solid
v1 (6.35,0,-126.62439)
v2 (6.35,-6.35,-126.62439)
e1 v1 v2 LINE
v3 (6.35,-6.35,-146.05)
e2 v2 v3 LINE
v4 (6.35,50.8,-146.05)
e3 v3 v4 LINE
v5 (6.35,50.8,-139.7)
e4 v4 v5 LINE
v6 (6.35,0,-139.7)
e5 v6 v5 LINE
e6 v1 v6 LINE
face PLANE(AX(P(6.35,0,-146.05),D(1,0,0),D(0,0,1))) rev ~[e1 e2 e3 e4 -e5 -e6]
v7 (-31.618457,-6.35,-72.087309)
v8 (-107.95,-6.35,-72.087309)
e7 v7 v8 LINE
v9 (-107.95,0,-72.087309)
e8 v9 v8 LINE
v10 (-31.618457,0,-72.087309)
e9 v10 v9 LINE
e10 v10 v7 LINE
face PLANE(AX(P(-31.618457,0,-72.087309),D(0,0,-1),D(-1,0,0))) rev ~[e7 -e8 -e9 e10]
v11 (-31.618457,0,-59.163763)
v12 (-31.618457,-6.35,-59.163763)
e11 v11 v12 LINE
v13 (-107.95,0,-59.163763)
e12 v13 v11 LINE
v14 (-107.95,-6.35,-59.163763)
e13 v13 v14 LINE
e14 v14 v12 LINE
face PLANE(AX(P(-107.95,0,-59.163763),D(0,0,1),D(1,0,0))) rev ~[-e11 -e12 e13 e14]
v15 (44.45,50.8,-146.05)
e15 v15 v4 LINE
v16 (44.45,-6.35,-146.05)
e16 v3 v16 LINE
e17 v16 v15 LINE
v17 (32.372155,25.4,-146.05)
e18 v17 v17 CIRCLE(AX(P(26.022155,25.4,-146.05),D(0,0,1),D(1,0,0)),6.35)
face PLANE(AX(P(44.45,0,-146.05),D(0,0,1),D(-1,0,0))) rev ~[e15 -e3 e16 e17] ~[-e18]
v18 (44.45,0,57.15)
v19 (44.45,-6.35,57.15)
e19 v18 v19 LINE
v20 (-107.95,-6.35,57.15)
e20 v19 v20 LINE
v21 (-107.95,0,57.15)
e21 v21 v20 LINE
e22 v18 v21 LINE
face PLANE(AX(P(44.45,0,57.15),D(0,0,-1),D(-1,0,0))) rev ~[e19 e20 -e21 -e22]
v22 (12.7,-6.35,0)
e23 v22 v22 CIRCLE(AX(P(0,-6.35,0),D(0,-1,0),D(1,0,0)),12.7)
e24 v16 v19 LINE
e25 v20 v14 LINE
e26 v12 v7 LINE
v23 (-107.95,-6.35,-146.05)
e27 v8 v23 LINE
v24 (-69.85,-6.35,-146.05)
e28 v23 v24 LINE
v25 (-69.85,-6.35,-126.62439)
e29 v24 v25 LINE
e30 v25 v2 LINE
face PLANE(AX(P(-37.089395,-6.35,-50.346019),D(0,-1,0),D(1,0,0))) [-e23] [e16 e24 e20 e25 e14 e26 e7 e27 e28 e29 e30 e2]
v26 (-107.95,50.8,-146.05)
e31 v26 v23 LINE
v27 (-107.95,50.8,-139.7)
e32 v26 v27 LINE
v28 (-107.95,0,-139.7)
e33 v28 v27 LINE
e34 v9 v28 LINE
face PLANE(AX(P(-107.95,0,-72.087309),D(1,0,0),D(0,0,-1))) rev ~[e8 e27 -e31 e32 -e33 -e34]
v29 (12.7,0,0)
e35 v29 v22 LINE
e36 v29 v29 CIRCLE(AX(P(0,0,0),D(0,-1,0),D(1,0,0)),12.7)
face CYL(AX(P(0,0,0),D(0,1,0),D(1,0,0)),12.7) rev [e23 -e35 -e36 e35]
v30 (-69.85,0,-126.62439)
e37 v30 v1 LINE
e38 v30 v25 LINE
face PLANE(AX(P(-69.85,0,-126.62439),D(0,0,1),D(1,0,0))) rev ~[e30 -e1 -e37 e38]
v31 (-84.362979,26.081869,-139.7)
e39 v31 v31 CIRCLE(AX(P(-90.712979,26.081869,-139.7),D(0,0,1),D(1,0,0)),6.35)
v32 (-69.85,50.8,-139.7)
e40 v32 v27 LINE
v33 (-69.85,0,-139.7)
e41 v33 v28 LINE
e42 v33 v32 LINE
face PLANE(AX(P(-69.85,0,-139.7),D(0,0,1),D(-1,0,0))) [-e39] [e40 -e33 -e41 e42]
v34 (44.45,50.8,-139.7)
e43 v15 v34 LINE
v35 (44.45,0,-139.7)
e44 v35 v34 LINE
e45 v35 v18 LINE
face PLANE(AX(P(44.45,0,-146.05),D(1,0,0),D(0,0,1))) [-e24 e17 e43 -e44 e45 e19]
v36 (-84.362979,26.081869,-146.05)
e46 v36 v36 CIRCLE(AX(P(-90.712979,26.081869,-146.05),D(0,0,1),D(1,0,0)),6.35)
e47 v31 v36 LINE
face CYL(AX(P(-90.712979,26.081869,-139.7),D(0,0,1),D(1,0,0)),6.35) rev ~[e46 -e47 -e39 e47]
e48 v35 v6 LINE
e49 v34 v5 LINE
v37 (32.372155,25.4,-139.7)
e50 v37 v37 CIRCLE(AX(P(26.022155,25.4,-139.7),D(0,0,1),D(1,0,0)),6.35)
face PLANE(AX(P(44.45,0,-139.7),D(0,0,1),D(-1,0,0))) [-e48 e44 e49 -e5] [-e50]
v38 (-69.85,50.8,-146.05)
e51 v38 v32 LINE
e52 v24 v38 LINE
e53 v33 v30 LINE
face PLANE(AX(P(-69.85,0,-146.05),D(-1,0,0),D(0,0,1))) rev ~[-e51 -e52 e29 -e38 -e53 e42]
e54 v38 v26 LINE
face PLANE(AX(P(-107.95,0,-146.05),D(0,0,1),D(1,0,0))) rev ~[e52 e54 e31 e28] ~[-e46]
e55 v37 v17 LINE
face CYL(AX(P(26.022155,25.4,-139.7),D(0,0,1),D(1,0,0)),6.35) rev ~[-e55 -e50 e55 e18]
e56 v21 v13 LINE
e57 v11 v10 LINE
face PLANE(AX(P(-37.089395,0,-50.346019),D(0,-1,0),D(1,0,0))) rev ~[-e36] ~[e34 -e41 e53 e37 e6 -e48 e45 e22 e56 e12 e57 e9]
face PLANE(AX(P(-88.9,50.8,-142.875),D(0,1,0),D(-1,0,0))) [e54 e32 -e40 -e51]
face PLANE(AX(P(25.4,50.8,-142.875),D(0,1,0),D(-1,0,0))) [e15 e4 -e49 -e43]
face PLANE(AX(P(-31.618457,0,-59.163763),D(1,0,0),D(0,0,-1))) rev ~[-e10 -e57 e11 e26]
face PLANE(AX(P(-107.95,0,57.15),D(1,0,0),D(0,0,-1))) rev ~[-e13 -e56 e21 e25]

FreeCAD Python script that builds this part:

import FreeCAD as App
import Part
import Sketcher
from FreeCAD import Vector
Q = App.Units.Quantity

doc = App.newDocument("Part")
body = doc.addObject("PartDesign::Body", "Body")

sketch1 = body.newObject("Sketcher::SketchObject", "Sketch")
sketch1.AttachmentSupport = (doc.getObject("XZ_Plane"), [""])
sketch1.MapMode = "FlatFace"
sketch1.addGeometry(Part.LineSegment(Vector(44.45, 57.15, 0), Vector(-107.95, 57.15, 0)), False)
sketch1.addGeometry(Part.LineSegment(Vector(-107.95, 57.15, 0), Vector(-107.95, -59.163763, 0)), False)
sketch1.addGeometry(Part.LineSegment(Vector(-107.95, -59.163763, 0), Vector(-31.618457, -59.163763, 0)), False)
sketch1.addGeometry(Part.LineSegment(Vector(-31.618457, -59.163763, 0), Vector(-31.618457, -72.087309, 0)), False)
sketch1.addGeometry(Part.LineSegment(Vector(-31.618457, -72.087309, 0), Vector(-107.95, -72.087309, 0)), False)
sketch1.addGeometry(Part.LineSegment(Vector(-107.95, -72.087309, 0), Vector(-107.95, -146.05, 0)), False)
sketch1.addGeometry(Part.LineSegment(Vector(-107.95, -146.05, 0), Vector(-69.85, -146.05, 0)), False)
sketch1.addGeometry(Part.LineSegment(Vector(-69.85, -146.05, 0), Vector(-69.85, -126.62439, 0)), False)
sketch1.addGeometry(Part.LineSegment(Vector(-69.85, -126.62439, 0), Vector(6.35, -126.62439, 0)), False)
sketch1.addGeometry(Part.LineSegment(Vector(6.35, -126.62439, 0), Vector(6.35, -146.05, 0)), False)
sketch1.addGeometry(Part.LineSegment(Vector(6.35, -146.05, 0), Vector(44.45, -146.05, 0)), False)
sketch1.addGeometry(Part.LineSegment(Vector(44.45, -146.05, 0), Vector(44.45, 57.15, 0)), False)
sketch1.addGeometry(Part.Circle(Vector(0, 0, 0), Vector(0, 0, 1), 12.7), False)
sketch1.addConstraint(Sketcher.Constraint("Coincident", 0, 2, 1, 1))
sketch1.addConstraint(Sketcher.Constraint("Coincident", 1, 2, 2, 1))
sketch1.addConstraint(Sketcher.Constraint("Coincident", 2, 2, 3, 1))
sketch1.addConstraint(Sketcher.Constraint("Coincident", 3, 2, 4, 1))
sketch1.addConstraint(Sketcher.Constraint("Coincident", 4, 2, 5, 1))
sketch1.addConstraint(Sketcher.Constraint("Coincident", 5, 2, 6, 1))
sketch1.addConstraint(Sketcher.Constraint("Coincident", 6, 2, 7, 1))
sketch1.addConstraint(Sketcher.Constraint("Coincident", 7, 2, 8, 1))
sketch1.addConstraint(Sketcher.Constraint("Coincident", 8, 2, 9, 1))
sketch1.addConstraint(Sketcher.Constraint("Coincident", 9, 2, 10, 1))
sketch1.addConstraint(Sketcher.Constraint("Coincident", 10, 2, 11, 1))
sketch1.addConstraint(Sketcher.Constraint("Coincident", 11, 2, 0, 1))
sketch1.addConstraint(Sketcher.Constraint("Horizontal", 0))
sketch1.addConstraint(Sketcher.Constraint("Vertical", 1))
sketch1.addConstraint(Sketcher.Constraint("Horizontal", 2))
sketch1.addConstraint(Sketcher.Constraint("Vertical", 3))
sketch1.addConstraint(Sketcher.Constraint("Horizontal", 4))
sketch1.addConstraint(Sketcher.Constraint("Vertical", 5))
sketch1.addConstraint(Sketcher.Constraint("Horizontal", 6))
sketch1.addConstraint(Sketcher.Constraint("Vertical", 7))
sketch1.addConstraint(Sketcher.Constraint("Horizontal", 8))
sketch1.addConstraint(Sketcher.Constraint("Vertical", 9))
sketch1.addConstraint(Sketcher.Constraint("Horizontal", 10))
sketch1.addConstraint(Sketcher.Constraint("Vertical", 11))
sketch1.addConstraint(Sketcher.Constraint("Coincident", 12, 3, -1, 1))
sketch1.addConstraint(Sketcher.Constraint("Horizontal", 6, 2, 9, 2))
sketch1.addConstraint(Sketcher.Constraint("Vertical", 1, 2, 4, 2))
sketch1.addConstraint(Sketcher.Constraint("Equal", 6, 10))
sketch1.addConstraint(Sketcher.Constraint("Diameter", 12, Q("1 in")))
sketch1.addConstraint(Sketcher.Constraint("DistanceX", 0, 2, 0, 1, Q("6 in")))
sketch1.addConstraint(Sketcher.Constraint("DistanceX", 8, 1, 8, 2, Q("3 in")))
sketch1.addConstraint(Sketcher.Constraint("DistanceY", 11, 1, 11, 2, Q("8 in")))
sketch1.addConstraint(Sketcher.Constraint("DistanceX", 0, 2, -1, 1, Q("4.25 in")))
sketch1.addConstraint(Sketcher.Constraint("DistanceY", -1, 1, 0, 2, Q("2.25 in")))
sketch1.addConstraint(Sketcher.Constraint("DistanceY", 5, 2, 5, 1, Q("73.962691 mm")))
sketch1.addConstraint(Sketcher.Constraint("DistanceY", 7, 1, 7, 2, Q("19.42561 mm")))
sketch1.addConstraint(Sketcher.Constraint("DistanceX", 2, 1, 2, 2, Q("76.331543 mm")))
sketch1.addConstraint(Sketcher.Constraint("DistanceY", 1, 2, 1, 1, Q("116.313763 mm")))
pad1 = body.newObject("PartDesign::Pad", "Pad")
pad1.Profile = sketch1
pad1.Length = Q("0.25 in")

sketch2 = body.newObject("Sketcher::SketchObject", "Sketch001")
sketch2.AttachmentSupport = (doc.getObject("XZ_Plane"), [""])
sketch2.MapMode = "FlatFace"
sketch2.addGeometry(Part.LineSegment(Vector(44.45, -139.7, 0), Vector(44.45, -146.05, 0)), False)
sketch2.addGeometry(Part.LineSegment(Vector(44.45, -146.05, 0), Vector(6.35, -146.05, 0)), False)
sketch2.addGeometry(Part.LineSegment(Vector(6.35, -146.05, 0), Vector(6.35, -139.7, 0)), False)
sketch2.addGeometry(Part.LineSegment(Vector(6.35, -139.7, 0), Vector(44.45, -139.7, 0)), False)
sketch2.addGeometry(Part.LineSegment(Vector(-69.85, -139.7, 0), Vector(-69.85, -146.05, 0)), False)
sketch2.addGeometry(Part.LineSegment(Vector(-69.85, -146.05, 0), Vector(-107.95, -146.05, 0)), False)
sketch2.addGeometry(Part.LineSegment(Vector(-107.95, -146.05, 0), Vector(-107.95, -139.7, 0)), False)
sketch2.addGeometry(Part.LineSegment(Vector(-107.95, -139.7, 0), Vector(-69.85, -139.7, 0)), False)
sketch2.addConstraint(Sketcher.Constraint("Coincident", 0, 2, 1, 1))
sketch2.addConstraint(Sketcher.Constraint("Coincident", 1, 2, 2, 1))
sketch2.addConstraint(Sketcher.Constraint("Coincident", 2, 2, 3, 1))
sketch2.addConstraint(Sketcher.Constraint("Coincident", 3, 2, 0, 1))
sketch2.addConstraint(Sketcher.Constraint("Coincident", 4, 2, 5, 1))
sketch2.addConstraint(Sketcher.Constraint("Coincident", 5, 2, 6, 1))
sketch2.addConstraint(Sketcher.Constraint("Coincident", 6, 2, 7, 1))
sketch2.addConstraint(Sketcher.Constraint("Coincident", 7, 2, 4, 1))
sketch2.addConstraint(Sketcher.Constraint("Vertical", 0))
sketch2.addConstraint(Sketcher.Constraint("Horizontal", 1))
sketch2.addConstraint(Sketcher.Constraint("Vertical", 2))
sketch2.addConstraint(Sketcher.Constraint("Horizontal", 3))
sketch2.addConstraint(Sketcher.Constraint("Vertical", 4))
sketch2.addConstraint(Sketcher.Constraint("Horizontal", 5))
sketch2.addConstraint(Sketcher.Constraint("Vertical", 6))
sketch2.addConstraint(Sketcher.Constraint("Horizontal", 7))
sketch2.addConstraint(Sketcher.Constraint("Horizontal", 1, 2, 4, 2))
sketch2.addConstraint(Sketcher.Constraint("Horizontal", 3, 2, 6, 2))
sketch2.addConstraint(Sketcher.Constraint("Equal", 3, 5))
sketch2.addConstraint(Sketcher.Constraint("DistanceX", 1, 2, 1, 1, Q("1.5 in")))
sketch2.addConstraint(Sketcher.Constraint("DistanceX", 4, 2, 1, 2, Q("3 in")))
sketch2.addConstraint(Sketcher.Constraint("DistanceY", 0, 2, 0, 1, Q("0.25 in")))
sketch2.addConstraint(Sketcher.Constraint("DistanceY", 2, 2, -1, 1, Q("5.5 in")))
sketch2.addConstraint(Sketcher.Constraint("DistanceX", -1, 1, 0, 2, Q("1.75 in")))
pad2 = body.newObject("PartDesign::Pad", "Pad001")
pad2.Profile = sketch2
pad2.Length = Q("2 in")
pad2.Reversed = True

sketch3 = body.newObject("Sketcher::SketchObject", "Sketch002")
sketch3.AttachmentSupport = (doc.getObject("XY_Plane"), [""])
sketch3.MapMode = "FlatFace"
sketch3.AttachmentOffset = App.Placement(Vector(0, 0, -5.5 * 25.4), App.Rotation())
sketch3.addGeometry(Part.Circle(Vector(26.022155, 25.4, 0), Vector(0, 0, 1), 6.35), False)
sketch3.addGeometry(Part.Circle(Vector(-90.712979, 26.081869, 0), Vector(0, 0, 1), 6.35), False)
sketch3.addConstraint(Sketcher.Constraint("Equal", 0, 1))
sketch3.addConstraint(Sketcher.Constraint("Diameter", 0, Q("0.5 in")))
sketch3.addConstraint(Sketcher.Constraint("DistanceY", -1, 1, 0, 3, Q("1 in")))
sketch3.addConstraint(Sketcher.Constraint("DistanceX", 1, 3, -1, 1, Q("90.712979 mm")))
sketch3.addConstraint(Sketcher.Constraint("DistanceY", -1, 1, 1, 3, Q("26.081869 mm")))
sketch3.addConstraint(Sketcher.Constraint("DistanceX", -1, 1, 0, 3, Q("26.022155 mm")))
pocket1 = body.newObject("PartDesign::Pocket", "Pocket")
pocket1.Profile = sketch3
pocket1.Length = Q("1 in")

doc.recompute()
